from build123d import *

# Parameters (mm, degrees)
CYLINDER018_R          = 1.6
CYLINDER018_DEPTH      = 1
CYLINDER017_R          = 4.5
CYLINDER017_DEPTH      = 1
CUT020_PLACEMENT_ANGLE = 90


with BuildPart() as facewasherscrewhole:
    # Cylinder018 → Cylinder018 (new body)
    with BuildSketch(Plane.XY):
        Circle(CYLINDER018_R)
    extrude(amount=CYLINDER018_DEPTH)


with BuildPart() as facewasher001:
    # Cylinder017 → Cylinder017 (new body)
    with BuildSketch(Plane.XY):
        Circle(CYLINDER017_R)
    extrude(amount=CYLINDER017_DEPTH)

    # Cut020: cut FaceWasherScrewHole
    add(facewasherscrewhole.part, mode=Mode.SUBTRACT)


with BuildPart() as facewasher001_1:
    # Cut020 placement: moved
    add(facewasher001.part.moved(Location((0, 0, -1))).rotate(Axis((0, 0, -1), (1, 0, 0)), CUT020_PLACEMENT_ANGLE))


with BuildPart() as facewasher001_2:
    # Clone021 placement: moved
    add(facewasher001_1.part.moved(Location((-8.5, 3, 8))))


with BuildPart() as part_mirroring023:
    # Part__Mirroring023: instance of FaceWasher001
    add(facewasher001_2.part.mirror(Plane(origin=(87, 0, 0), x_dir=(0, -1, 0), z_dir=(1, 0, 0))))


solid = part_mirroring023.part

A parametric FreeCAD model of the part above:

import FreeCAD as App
import Part
import Sketcher

doc = App.newDocument("Part")
body = doc.addObject("PartDesign::Body", "Body")

sketch1 = body.newObject("Sketcher::SketchObject", "Sketch")
sketch1.AttachmentSupport = (doc.getObject("XY_Plane"), [""])
sketch1.MapMode = "FlatFace"
sketch1.addGeometry(Part.Circle(App.Vector(0, 0, 0), App.Vector(0, 0, 1), 1.6), False)
sketch1.addConstraint([
    Sketcher.Constraint("Coincident", 0, 3, -1, 1),
    Sketcher.Constraint("Diameter", 0, 3.2),
])
pad1 = body.newObject("PartDesign::Pad", "Pad")
pad1.Profile = sketch1
pad1.Length = 1
body2 = doc.addObject("PartDesign::Body", "Body001")

sketch2 = body2.newObject("Sketcher::SketchObject", "Sketch001")
sketch2.AttachmentSupport = (doc.getObject("XY_Plane001"), [""])
sketch2.MapMode = "FlatFace"
sketch2.addGeometry(Part.Circle(App.Vector(0, 0, 0), App.Vector(0, 0, 1), 4.5), False)
sketch2.addConstraint([
    Sketcher.Constraint("Coincident", 0, 3, -1, 1),
    Sketcher.Constraint("Diameter", 0, 9.0),
])
pad2 = body2.newObject("PartDesign::Pad", "Pad001")
pad2.Profile = sketch2
pad2.Length = 1
doc.recompute()

boolean = body2.newObject("PartDesign::Boolean", "Boolean")
boolean.Type = "Cut"
boolean.addObjects([body])
body3 = doc.addObject("PartDesign::Body", "Body002")
doc.recompute()

body2.Placement = App.Placement(App.Vector(0, 0, -1), App.Rotation(App.Vector(1, 0, 0), 90))
boolean2 = body3.newObject("PartDesign::Boolean", "Boolean001")
boolean2.Type = "Fuse"
boolean2.addObjects([body2])
body4 = doc.addObject("PartDesign::Body", "Body003")
doc.recompute()

body3.Placement = App.Placement(App.Vector(-8.5, 3, 8), App.Rotation(App.Vector(0, 0, 1), 0))
boolean3 = body4.newObject("PartDesign::Boolean", "Boolean002")
boolean3.Type = "Fuse"
boolean3.addObjects([body3])
body5 = doc.addObject("PartDesign::Body", "Body004")
doc.recompute()

mirroring = doc.addObject("Part::Mirroring", "Mirroring")
mirroring.Source = body4
mirroring.Base = App.Vector(87, 0, 0)
mirroring.Normal = App.Vector(1, 0, 0)
body5.BaseFeature = mirroring
doc.recompute()
body4.Visibility = False
mirroring.Visibility = False

doc.recompute()
